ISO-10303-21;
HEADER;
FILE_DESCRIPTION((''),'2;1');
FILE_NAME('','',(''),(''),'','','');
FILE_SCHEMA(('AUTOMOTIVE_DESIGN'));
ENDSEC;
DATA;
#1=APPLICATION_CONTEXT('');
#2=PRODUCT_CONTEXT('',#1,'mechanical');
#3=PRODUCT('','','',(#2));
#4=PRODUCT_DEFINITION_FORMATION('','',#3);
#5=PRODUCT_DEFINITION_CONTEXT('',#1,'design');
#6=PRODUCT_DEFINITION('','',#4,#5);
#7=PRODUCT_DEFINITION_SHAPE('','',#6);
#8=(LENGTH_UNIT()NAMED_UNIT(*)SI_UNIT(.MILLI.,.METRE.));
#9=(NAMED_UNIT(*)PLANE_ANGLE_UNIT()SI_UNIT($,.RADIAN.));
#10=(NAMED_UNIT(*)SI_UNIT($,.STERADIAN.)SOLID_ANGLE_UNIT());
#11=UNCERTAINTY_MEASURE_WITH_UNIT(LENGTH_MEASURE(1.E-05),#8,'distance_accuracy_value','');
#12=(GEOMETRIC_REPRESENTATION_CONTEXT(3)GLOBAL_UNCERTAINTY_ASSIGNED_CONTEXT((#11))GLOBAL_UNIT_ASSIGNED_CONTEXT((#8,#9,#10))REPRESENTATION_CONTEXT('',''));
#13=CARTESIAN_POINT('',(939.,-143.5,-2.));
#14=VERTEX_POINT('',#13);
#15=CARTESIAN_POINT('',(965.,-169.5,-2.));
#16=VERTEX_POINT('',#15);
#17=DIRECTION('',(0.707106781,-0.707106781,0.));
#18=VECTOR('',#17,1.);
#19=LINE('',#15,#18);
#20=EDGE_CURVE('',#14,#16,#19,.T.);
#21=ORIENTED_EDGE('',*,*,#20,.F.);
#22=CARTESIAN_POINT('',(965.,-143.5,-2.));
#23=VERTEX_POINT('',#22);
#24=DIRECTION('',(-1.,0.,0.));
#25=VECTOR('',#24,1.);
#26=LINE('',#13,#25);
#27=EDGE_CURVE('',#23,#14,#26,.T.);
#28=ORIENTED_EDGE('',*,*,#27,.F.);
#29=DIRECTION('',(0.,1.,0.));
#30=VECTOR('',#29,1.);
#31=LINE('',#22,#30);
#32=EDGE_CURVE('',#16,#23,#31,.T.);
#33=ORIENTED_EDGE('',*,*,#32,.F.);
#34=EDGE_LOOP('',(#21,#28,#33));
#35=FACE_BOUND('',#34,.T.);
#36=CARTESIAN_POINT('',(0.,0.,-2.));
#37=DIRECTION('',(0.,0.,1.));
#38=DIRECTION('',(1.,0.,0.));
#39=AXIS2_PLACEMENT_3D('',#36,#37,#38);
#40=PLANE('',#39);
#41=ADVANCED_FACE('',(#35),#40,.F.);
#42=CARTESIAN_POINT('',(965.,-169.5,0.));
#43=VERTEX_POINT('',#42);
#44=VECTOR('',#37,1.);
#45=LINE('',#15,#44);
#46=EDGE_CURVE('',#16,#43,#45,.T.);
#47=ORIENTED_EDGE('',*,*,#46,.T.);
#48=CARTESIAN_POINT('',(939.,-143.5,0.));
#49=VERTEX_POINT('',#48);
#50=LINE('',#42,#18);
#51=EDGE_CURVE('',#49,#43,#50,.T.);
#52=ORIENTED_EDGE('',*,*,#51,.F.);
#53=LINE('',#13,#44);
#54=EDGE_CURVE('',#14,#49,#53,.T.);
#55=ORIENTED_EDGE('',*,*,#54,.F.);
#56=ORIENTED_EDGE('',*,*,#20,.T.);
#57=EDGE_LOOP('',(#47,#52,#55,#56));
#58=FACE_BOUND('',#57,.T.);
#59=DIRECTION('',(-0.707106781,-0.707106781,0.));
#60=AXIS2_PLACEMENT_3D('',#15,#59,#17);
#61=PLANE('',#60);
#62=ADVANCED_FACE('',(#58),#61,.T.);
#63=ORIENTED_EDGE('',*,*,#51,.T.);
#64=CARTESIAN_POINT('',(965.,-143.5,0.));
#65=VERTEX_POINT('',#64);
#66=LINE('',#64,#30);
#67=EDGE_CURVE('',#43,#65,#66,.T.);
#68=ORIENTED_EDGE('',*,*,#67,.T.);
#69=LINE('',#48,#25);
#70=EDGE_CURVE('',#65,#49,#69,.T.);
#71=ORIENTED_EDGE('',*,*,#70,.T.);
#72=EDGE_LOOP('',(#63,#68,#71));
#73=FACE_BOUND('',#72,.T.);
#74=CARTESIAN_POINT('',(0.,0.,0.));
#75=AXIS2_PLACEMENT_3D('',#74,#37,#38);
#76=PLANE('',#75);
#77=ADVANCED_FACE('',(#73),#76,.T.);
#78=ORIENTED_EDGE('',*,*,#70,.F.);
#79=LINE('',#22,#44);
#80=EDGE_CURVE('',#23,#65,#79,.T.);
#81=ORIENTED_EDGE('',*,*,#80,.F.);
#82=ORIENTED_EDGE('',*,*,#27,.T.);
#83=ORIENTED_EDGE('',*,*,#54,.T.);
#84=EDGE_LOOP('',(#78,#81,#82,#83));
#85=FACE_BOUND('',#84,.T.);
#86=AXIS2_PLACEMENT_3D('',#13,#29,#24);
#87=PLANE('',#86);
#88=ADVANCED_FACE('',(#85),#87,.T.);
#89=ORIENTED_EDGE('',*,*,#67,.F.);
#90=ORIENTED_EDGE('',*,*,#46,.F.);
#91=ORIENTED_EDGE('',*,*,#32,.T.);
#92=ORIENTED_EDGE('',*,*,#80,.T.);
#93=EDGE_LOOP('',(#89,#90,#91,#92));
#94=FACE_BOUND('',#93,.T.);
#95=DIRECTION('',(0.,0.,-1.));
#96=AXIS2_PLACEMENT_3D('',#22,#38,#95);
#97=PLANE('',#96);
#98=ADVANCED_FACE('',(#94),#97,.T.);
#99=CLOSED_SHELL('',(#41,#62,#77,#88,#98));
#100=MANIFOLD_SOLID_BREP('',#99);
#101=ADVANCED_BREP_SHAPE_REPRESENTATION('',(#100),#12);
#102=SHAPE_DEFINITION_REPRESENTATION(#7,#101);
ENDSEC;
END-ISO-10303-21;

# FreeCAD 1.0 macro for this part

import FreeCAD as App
import Part
import Sketcher

doc = App.newDocument("Part")
body = doc.addObject("PartDesign::Body", "Body")

# Sketch on XY plane
sketch1 = doc.addObject("Sketcher::SketchObject", "Sketch")
body.addObject(sketch1)
sketch1.AttachmentSupport = (doc.XY_Plane, [""])
sketch1.MapMode = "FlatFace"
sketch1.addGeometry(Part.LineSegment(App.Vector(939, -144, 0), App.Vector(965, -170, 0)), False)
sketch1.addGeometry(Part.LineSegment(App.Vector(965, -170, 0), App.Vector(965, -144, 0)), False)
sketch1.addGeometry(Part.LineSegment(App.Vector(965, -144, 0), App.Vector(939, -144, 0)), False)
sketch1.addConstraint(Sketcher.Constraint("Coincident", 0, 2, 1, 1))
sketch1.addConstraint(Sketcher.Constraint("Coincident", 1, 2, 2, 1))
sketch1.addConstraint(Sketcher.Constraint("Coincident", 2, 2, 0, 1))
sketch1.addConstraint(Sketcher.Constraint("Vertical", 1))
sketch1.addConstraint(Sketcher.Constraint("Horizontal", 2))
sketch1.addConstraint(Sketcher.Constraint("Equal", 2, 1))
sketch1.addConstraint(Sketcher.Constraint("DistanceX", 2, 2, 2, 1, 26.0))
sketch1.addConstraint(Sketcher.Constraint("DistanceX", -1, 1, 0, 2, 965.0))
sketch1.addConstraint(Sketcher.Constraint("DistanceY", 0, 2, -1, 1, 169.5))
pad1 = doc.addObject("PartDesign::Pad", "Pad")
body.addObject(pad1)
pad1.Profile = sketch1
pad1.Length = 2
pad1.Reversed = True

doc.recompute()
